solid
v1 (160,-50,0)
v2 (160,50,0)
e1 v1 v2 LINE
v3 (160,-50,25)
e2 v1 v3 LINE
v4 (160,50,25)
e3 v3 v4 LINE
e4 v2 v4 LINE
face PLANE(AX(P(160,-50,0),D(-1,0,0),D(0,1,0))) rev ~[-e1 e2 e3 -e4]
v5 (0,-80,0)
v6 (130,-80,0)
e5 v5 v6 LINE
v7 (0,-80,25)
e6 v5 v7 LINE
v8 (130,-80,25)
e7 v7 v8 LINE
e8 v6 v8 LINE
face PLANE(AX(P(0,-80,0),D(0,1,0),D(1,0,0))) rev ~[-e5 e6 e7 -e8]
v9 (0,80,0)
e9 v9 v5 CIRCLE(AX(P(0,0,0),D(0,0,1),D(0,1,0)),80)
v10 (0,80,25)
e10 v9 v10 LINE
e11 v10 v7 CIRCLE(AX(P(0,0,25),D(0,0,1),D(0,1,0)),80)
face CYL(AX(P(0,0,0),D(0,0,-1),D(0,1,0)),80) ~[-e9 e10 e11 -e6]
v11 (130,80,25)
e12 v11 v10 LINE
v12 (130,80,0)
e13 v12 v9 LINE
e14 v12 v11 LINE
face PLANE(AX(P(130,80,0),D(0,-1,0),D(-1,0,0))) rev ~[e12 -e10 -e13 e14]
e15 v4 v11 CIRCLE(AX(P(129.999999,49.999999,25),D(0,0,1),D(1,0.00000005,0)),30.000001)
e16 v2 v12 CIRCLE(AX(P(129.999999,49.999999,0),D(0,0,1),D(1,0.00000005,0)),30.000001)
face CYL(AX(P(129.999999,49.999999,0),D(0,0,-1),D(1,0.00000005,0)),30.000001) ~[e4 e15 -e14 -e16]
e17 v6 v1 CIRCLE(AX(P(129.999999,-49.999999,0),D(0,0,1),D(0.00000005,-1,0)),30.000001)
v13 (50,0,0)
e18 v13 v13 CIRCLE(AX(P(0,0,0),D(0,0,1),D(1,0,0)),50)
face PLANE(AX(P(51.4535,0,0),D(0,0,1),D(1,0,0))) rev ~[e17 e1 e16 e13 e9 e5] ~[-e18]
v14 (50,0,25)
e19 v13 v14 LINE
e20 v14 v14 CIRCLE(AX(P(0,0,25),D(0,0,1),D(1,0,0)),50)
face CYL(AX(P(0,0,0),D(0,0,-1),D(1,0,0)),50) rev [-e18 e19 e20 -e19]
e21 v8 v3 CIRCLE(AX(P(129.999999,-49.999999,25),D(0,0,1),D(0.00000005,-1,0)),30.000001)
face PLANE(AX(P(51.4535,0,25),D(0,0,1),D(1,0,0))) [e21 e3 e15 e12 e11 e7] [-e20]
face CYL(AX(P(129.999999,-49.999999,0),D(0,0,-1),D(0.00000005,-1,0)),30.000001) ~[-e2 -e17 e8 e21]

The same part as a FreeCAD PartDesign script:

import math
import FreeCAD as App
import Part
import Sketcher
from FreeCAD import Vector
Q = App.Units.Quantity

doc = App.newDocument("Part")
body = doc.addObject("PartDesign::Body", "Body")

# Sketch on XY plane
sketch1 = body.newObject("Sketcher::SketchObject", "Sketch")
sketch1.AttachmentSupport = (doc.getObject("XY_Plane"), [""])
sketch1.MapMode = "FlatFace"
sketch1.addGeometry(Part.LineSegment(Vector(130, 80, 0), Vector(0, 80, 0)), False)
sketch1.addGeometry(Part.ArcOfCircle(Part.Circle(Vector(0, 0, 0), Vector(0, 0, 1), 80), math.radians(90), math.radians(270)), False)
sketch1.addGeometry(Part.LineSegment(Vector(0, -80, 0), Vector(130, -80, 0)), False)
sketch1.addGeometry(Part.ArcOfCircle(Part.Circle(Vector(130, -50, 0), Vector(0, 0, 1), 30), math.radians(-90), math.radians(0)), False)
sketch1.addGeometry(Part.LineSegment(Vector(160, -50, 0), Vector(160, 50, 0)), False)
sketch1.addGeometry(Part.ArcOfCircle(Part.Circle(Vector(130, 50, 0), Vector(0, 0, 1), 30), math.radians(0), math.radians(90)), False)
sketch1.addGeometry(Part.Circle(Vector(0, 0, 0), Vector(0, 0, 1), 50), False)
sketch1.addConstraint(Sketcher.Constraint("Tangent", 0, 2, 1, 1))
sketch1.addConstraint(Sketcher.Constraint("Tangent", 1, 2, 2, 1))
sketch1.addConstraint(Sketcher.Constraint("Tangent", 2, 2, 3, 1))
sketch1.addConstraint(Sketcher.Constraint("Tangent", 3, 2, 4, 1))
sketch1.addConstraint(Sketcher.Constraint("Tangent", 4, 2, 5, 1))
sketch1.addConstraint(Sketcher.Constraint("Tangent", 5, 2, 0, 1))
sketch1.addConstraint(Sketcher.Constraint("Horizontal", 0))
sketch1.addConstraint(Sketcher.Constraint("Horizontal", 2))
sketch1.addConstraint(Sketcher.Constraint("Vertical", 4))
sketch1.addConstraint(Sketcher.Constraint("Coincident", 1, 3, -1, 1))
sketch1.addConstraint(Sketcher.Constraint("Coincident", 6, 3, -1, 1))
sketch1.addConstraint(Sketcher.Constraint("Equal", 3, 5))
sketch1.addConstraint(Sketcher.Constraint("Diameter", 6, Q("100 mm")))
sketch1.addConstraint(Sketcher.Constraint("Radius", 1, Q("80 mm")))
sketch1.addConstraint(Sketcher.Constraint("Radius", 3, Q("30.000001 mm")))
sketch1.addConstraint(Sketcher.Constraint("DistanceX", 0, 2, 0, 1, Q("130 mm")))
pad1 = body.newObject("PartDesign::Pad", "Pad")
pad1.Profile = sketch1
pad1.Length = 25

doc.recompute()
